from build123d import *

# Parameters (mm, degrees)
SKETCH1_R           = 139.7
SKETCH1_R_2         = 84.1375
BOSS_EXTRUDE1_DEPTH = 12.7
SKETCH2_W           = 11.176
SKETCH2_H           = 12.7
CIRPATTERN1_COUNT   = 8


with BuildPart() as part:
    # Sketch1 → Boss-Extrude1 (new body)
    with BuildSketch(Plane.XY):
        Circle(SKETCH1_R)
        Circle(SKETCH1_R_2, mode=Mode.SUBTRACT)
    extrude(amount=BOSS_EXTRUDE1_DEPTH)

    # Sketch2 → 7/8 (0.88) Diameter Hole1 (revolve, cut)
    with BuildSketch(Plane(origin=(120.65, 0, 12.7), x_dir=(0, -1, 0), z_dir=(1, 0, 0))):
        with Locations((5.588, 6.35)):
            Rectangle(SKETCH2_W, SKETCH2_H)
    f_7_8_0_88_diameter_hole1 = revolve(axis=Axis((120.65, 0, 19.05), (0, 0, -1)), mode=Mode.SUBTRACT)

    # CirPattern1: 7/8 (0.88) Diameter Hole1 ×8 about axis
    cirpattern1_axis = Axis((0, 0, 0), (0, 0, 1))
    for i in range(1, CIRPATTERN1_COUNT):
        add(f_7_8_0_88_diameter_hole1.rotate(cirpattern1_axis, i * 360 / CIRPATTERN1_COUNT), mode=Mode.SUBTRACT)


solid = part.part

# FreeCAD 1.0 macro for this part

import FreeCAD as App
import Part
import Sketcher
Q = App.Units.Quantity

doc = App.newDocument("Part")
params = doc.addObject("Spreadsheet::Sheet", "Params")
for row, (alias, value) in enumerate([
    ("sketch1_diameter", "11 in"),
    ("sketch1_diameter2", "6.625 in"),
    ("pad1_length", "0.5 in"),
    ("sketch2_height", "0.5 in"),
    ("sketch2_width", "0.44 in"),
    ("groove_angle", "360 deg"),
], start=1):
    params.set(f"A{row}", alias)
    params.set(f"B{row}", "=" + value)
    params.setAlias(f"B{row}", alias)

body = doc.addObject("PartDesign::Body", "Body")

sketch1 = body.newObject("Sketcher::SketchObject", "Sketch")
sketch1.AttachmentSupport = (doc.getObject("XY_Plane"), [""])
sketch1.MapMode = "FlatFace"
sketch1.addGeometry(Part.Circle(App.Vector(0, 0, 0), App.Vector(0, 0, 1), 140), False)
sketch1.addGeometry(Part.Circle(App.Vector(0, 0, 0), App.Vector(0, 0, 1), 84), False)
sketch1.addConstraint(Sketcher.Constraint("Coincident", 0, 3, -1, 1))
sketch1.addConstraint(Sketcher.Constraint("Coincident", 1, 3, -1, 1))
sketch1.addConstraint(Sketcher.Constraint("Diameter", 0, Q("11 in")))
sketch1.addConstraint(Sketcher.Constraint("Diameter", 1, Q("6.625 in")))
sketch1.setExpression("Constraints[2]", "Params.sketch1_diameter")
sketch1.setExpression("Constraints[3]", "Params.sketch1_diameter2")
pad1 = body.newObject("PartDesign::Pad", "Pad")
pad1.Profile = sketch1
pad1.setExpression("Length", "Params.pad1_length")

sketch2 = body.newObject("Sketcher::SketchObject", "Sketch001")
sketch2.AttachmentSupport = (doc.getObject("YZ_Plane"), [""])
sketch2.MapMode = "FlatFace"
sketch2.AttachmentOffset = App.Placement(App.Vector(0, 0, 4.75 * 25.4), App.Rotation())
sketch2.addGeometry(Part.LineSegment(App.Vector(0, 0, 0), App.Vector(0, 13, 0)), False)
sketch2.addGeometry(Part.LineSegment(App.Vector(0, 13, 0), App.Vector(-11, 13, 0)), False)
sketch2.addGeometry(Part.LineSegment(App.Vector(-11, 13, 0), App.Vector(-11, 0, 0)), False)
sketch2.addGeometry(Part.LineSegment(App.Vector(-11, 0, 0), App.Vector(0, 0, 0)), False)
sketch2.addConstraint(Sketcher.Constraint("Coincident", 0, 2, 1, 1))
sketch2.addConstraint(Sketcher.Constraint("Coincident", 1, 2, 2, 1))
sketch2.addConstraint(Sketcher.Constraint("Coincident", 2, 2, 3, 1))
sketch2.addConstraint(Sketcher.Constraint("Coincident", 3, 2, 0, 1))
sketch2.addConstraint(Sketcher.Constraint("Vertical", 0))
sketch2.addConstraint(Sketcher.Constraint("Horizontal", 1))
sketch2.addConstraint(Sketcher.Constraint("Vertical", 2))
sketch2.addConstraint(Sketcher.Constraint("Horizontal", 3))
sketch2.addConstraint(Sketcher.Constraint("Coincident", 3, 2, -1, 1))
sketch2.addConstraint(Sketcher.Constraint("DistanceY", 0, 1, 0, 2, Q("0.5 in")))
sketch2.addConstraint(Sketcher.Constraint("DistanceX", 1, 2, 1, 1, Q("0.44 in")))
sketch2.setExpression("Constraints[9]", "Params.sketch2_height")
sketch2.setExpression("Constraints[10]", "Params.sketch2_width")
groove = body.newObject("PartDesign::Groove", "Groove")
groove.Profile = sketch2
groove.ReferenceAxis = (sketch2, ["V_Axis"])
groove.setExpression("Angle", "Params.groove_angle")
doc.recompute()

polarpattern = body.newObject("PartDesign::PolarPattern", "PolarPattern")
polarpattern.Originals = [groove]
polarpattern.Axis = (doc.getObject("Z_Axis"), [""])
polarpattern.Angle = 360
polarpattern.Occurrences = 8
body.Tip = polarpattern

doc.recompute()
